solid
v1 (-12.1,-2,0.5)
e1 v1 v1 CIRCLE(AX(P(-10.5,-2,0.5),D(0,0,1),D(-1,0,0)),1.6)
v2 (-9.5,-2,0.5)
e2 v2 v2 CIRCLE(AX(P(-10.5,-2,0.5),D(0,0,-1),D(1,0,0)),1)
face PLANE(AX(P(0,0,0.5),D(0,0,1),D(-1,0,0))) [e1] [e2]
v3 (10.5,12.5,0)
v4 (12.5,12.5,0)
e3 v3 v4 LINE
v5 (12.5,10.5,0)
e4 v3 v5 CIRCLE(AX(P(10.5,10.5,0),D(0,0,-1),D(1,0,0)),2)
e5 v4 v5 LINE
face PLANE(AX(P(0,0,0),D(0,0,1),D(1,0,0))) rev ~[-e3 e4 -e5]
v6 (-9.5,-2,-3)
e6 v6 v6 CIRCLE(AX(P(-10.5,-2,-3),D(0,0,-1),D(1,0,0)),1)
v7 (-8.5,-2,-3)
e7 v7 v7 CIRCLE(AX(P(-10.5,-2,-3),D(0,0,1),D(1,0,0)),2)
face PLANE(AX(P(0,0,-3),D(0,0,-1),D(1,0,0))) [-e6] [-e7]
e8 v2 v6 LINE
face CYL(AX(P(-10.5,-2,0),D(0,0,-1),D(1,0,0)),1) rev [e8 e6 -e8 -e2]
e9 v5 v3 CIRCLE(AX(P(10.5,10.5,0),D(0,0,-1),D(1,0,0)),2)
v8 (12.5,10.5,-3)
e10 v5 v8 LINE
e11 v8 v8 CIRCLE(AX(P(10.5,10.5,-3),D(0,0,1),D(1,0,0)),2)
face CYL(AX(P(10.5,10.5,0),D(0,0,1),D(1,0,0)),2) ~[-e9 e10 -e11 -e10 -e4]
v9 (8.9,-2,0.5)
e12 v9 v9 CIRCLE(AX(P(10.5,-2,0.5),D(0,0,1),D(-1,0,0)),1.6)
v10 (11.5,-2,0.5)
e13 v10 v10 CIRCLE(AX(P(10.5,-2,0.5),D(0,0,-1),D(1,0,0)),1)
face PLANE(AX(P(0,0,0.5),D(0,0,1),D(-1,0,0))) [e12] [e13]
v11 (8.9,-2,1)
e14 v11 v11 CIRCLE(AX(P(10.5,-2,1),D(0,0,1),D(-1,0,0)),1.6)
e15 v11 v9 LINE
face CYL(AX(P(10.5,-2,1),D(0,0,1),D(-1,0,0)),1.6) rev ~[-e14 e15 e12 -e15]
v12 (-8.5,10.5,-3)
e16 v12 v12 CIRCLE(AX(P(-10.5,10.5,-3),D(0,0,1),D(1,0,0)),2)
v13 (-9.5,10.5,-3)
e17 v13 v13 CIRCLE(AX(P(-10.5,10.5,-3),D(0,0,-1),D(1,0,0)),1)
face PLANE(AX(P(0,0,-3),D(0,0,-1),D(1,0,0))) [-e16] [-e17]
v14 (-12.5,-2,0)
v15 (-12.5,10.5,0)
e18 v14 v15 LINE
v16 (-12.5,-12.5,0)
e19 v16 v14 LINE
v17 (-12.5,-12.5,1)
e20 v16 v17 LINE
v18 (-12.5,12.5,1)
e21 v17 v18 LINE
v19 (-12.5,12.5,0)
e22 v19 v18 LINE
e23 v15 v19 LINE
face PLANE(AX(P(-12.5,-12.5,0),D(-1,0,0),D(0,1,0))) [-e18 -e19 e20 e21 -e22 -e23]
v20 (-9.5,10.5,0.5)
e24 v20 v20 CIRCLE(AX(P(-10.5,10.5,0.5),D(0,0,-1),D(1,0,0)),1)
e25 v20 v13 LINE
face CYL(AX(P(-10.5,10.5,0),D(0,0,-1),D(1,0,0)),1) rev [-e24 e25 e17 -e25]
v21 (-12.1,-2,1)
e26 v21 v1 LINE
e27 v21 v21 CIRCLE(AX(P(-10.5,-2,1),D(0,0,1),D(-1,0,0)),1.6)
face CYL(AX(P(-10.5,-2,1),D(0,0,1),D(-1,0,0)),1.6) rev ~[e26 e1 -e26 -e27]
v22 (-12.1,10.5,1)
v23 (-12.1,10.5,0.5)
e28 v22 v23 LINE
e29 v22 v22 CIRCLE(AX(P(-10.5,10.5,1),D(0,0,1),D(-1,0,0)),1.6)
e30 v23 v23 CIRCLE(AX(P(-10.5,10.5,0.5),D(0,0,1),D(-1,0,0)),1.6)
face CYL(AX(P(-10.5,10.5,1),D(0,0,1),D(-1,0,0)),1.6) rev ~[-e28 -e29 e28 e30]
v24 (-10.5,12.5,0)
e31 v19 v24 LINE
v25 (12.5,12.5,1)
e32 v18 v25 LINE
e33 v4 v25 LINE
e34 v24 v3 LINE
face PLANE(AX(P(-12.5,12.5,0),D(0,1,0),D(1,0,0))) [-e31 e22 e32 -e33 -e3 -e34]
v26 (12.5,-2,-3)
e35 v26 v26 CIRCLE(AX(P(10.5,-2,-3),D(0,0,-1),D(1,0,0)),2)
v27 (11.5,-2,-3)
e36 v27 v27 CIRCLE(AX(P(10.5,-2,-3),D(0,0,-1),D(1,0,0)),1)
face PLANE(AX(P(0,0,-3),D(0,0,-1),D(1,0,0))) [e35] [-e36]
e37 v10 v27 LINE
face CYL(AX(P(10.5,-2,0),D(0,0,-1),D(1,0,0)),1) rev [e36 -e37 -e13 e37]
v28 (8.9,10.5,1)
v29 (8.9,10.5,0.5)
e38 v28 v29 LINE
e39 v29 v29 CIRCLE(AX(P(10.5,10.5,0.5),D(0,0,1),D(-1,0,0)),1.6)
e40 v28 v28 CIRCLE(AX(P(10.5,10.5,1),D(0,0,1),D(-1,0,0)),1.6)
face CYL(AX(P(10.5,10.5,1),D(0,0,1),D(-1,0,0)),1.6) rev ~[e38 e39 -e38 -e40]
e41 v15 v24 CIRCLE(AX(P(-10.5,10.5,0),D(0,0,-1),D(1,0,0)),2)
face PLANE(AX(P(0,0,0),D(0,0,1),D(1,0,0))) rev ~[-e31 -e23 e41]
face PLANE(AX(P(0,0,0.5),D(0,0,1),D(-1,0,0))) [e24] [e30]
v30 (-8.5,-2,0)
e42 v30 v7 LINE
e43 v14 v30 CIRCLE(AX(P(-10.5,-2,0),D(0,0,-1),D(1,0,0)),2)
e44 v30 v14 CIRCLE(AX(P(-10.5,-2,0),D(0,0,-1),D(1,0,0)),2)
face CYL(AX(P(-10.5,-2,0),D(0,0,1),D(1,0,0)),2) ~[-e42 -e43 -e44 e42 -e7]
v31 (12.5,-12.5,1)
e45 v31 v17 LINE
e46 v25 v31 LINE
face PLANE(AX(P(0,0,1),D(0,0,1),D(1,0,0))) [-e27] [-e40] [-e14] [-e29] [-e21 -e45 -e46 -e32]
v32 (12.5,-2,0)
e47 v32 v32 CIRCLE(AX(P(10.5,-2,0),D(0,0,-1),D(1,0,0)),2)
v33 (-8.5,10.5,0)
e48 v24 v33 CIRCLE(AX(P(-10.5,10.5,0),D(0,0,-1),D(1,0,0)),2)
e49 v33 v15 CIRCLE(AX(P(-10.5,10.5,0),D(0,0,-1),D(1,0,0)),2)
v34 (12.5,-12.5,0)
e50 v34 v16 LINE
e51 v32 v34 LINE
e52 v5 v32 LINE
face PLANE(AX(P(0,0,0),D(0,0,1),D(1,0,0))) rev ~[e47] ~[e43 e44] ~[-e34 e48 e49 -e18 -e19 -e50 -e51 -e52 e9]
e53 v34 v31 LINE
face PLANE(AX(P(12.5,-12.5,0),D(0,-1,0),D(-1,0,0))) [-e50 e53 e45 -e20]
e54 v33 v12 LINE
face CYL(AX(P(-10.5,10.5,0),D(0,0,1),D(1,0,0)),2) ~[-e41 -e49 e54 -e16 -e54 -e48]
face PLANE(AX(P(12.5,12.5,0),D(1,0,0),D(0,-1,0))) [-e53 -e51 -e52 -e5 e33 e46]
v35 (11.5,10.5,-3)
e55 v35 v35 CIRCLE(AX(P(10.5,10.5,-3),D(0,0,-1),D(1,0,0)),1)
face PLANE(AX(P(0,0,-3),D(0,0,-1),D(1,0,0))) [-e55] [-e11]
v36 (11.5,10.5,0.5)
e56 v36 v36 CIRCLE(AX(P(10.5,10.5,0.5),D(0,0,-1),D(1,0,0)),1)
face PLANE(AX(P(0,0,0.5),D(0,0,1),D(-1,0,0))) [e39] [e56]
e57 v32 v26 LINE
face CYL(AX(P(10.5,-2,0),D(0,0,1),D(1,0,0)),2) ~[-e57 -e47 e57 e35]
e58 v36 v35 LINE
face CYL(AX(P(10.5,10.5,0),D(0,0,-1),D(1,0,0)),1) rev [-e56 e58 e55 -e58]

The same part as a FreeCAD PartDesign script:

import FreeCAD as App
import Part
import Sketcher

V = App.Vector
Q = App.Units.Quantity


def add_polygon(sketch, points):
    """Adds a closed chain of lines whose ends are joined by coincident constraints."""
    first, n = sketch.GeometryCount, len(points)
    for a, b in zip(points, points[1:] + points[:1]):
        sketch.addGeometry(Part.LineSegment(App.Vector(*a, 0), App.Vector(*b, 0)), False)
    for i in range(n):
        sketch.addConstraint(Sketcher.Constraint("Coincident", first + i, 2, first + (i + 1) % n, 1))

doc = App.newDocument("Part")
body = doc.addObject("PartDesign::Body", "Body")

sketch1 = body.newObject("Sketcher::SketchObject", "Sketch")
sketch1.AttachmentSupport = (doc.getObject("XY_Plane"), [""])
sketch1.MapMode = "FlatFace"
add_polygon(sketch1, [(12.5, 12.5), (-12.5, 12.5), (-12.5, -12.5), (12.5, -12.5)])
sketch1.addGeometry(Part.Circle(V(-10.5, -2, 0), V(0, 0, 1), 1), False)
sketch1.addGeometry(Part.Circle(V(10.5, -2, 0), V(0, 0, 1), 1), False)
sketch1.addGeometry(Part.Circle(V(-10.5, 10.5, 0), V(0, 0, 1), 1), False)
sketch1.addGeometry(Part.Circle(V(10.5, 10.5, 0), V(0, 0, 1), 1), False)
sketch1.addConstraint([
    Sketcher.Constraint("Horizontal", 0),
    Sketcher.Constraint("Vertical", 1),
    Sketcher.Constraint("Horizontal", 2),
    Sketcher.Constraint("Vertical", 3),
    Sketcher.Constraint("Equal", 4, 5),
    Sketcher.Constraint("Equal", 5, 6),
    Sketcher.Constraint("Equal", 6, 7),
    Sketcher.Constraint("Symmetric", 0, 2, 2, 2, -1, 1),
    Sketcher.Constraint("Symmetric", 4, 3, 5, 3, -2),
    Sketcher.Constraint("Symmetric", 6, 3, 7, 3, -2),
    Sketcher.Constraint("Vertical", 4, 3, 6, 3),
    Sketcher.Constraint("Equal", 2, 1),
    Sketcher.Constraint("Diameter", 4, Q("2 mm")),
    Sketcher.Constraint("DistanceX", 0, 2, 0, 1, Q("25 mm")),
    Sketcher.Constraint("DistanceY", 4, 3, -1, 1, Q("2 mm")),
    Sketcher.Constraint("DistanceX", 4, 3, 5, 3, Q("21 mm")),
    Sketcher.Constraint("DistanceY", 6, 3, 0, 2, Q("2 mm")),
])
pad1 = body.newObject("PartDesign::Pad", "Pad")
pad1.Profile = sketch1
pad1.Length = 1

sketch2 = body.newObject("Sketcher::SketchObject", "Sketch001")
sketch2.AttachmentSupport = (doc.getObject("XY_Plane"), [""])
sketch2.MapMode = "FlatFace"
sketch2.addGeometry([
    Part.Circle(V(-10.5, -2, 0), V(0, 0, 1), 2),
    Part.Circle(V(-10.5, -2, 0), V(0, 0, 1), 1),
    Part.Circle(V(10.5, -2, 0), V(0, 0, 1), 2),
    Part.Circle(V(10.5, -2, 0), V(0, 0, 1), 1),
    Part.Circle(V(10.5, 10.5, 0), V(0, 0, 1), 2),
    Part.Circle(V(10.5, 10.5, 0), V(0, 0, 1), 1),
    Part.Circle(V(-10.5, 10.5, 0), V(0, 0, 1), 2),
    Part.Circle(V(-10.5, 10.5, 0), V(0, 0, 1), 1),
], False)
sketch2.addConstraint([
    Sketcher.Constraint("Coincident", 1, 3, 0, 3),
    Sketcher.Constraint("Coincident", 3, 3, 2, 3),
    Sketcher.Constraint("Coincident", 5, 3, 4, 3),
    Sketcher.Constraint("Coincident", 7, 3, 6, 3),
    Sketcher.Constraint("Equal", 0, 2),
    Sketcher.Constraint("Equal", 1, 3),
    Sketcher.Constraint("Equal", 2, 4),
    Sketcher.Constraint("Equal", 3, 5),
    Sketcher.Constraint("Equal", 4, 6),
    Sketcher.Constraint("Equal", 5, 7),
    Sketcher.Constraint("Symmetric", 0, 3, 2, 3, -2),
    Sketcher.Constraint("Symmetric", 4, 3, 6, 3, -2),
    Sketcher.Constraint("Vertical", 3, 3, 4, 3),
    Sketcher.Constraint("Diameter", 0, Q("4 mm")),
    Sketcher.Constraint("Diameter", 1, Q("2 mm")),
    Sketcher.Constraint("DistanceY", 0, 3, -1, 1, Q("2 mm")),
    Sketcher.Constraint("DistanceX", 0, 3, 2, 3, Q("21 mm")),
    Sketcher.Constraint("DistanceY", -1, 1, 4, 3, Q("10.5 mm")),
])
pad2 = body.newObject("PartDesign::Pad", "Pad001")
pad2.Profile = sketch2
pad2.Length = 3
pad2.Reversed = True

sketch3 = body.newObject("Sketcher::SketchObject", "Sketch002")
sketch3.AttachmentSupport = (doc.getObject("XY_Plane"), [""])
sketch3.MapMode = "FlatFace"
sketch3.AttachmentOffset = App.Placement(V(0, 0, 1), App.Rotation())
sketch3.addGeometry([
    Part.Circle(V(-10.5, 10.5, 0), V(0, 0, 1), 1.6),
    Part.Circle(V(-10.5, 10.5, 0), V(0, 0, 1), 1),
    Part.Circle(V(10.5, 10.5, 0), V(0, 0, 1), 1.6),
    Part.Circle(V(10.5, 10.5, 0), V(0, 0, 1), 1),
    Part.Circle(V(10.5, -2, 0), V(0, 0, 1), 1.6),
    Part.Circle(V(10.5, -2, 0), V(0, 0, 1), 1),
    Part.Circle(V(-10.5, -2, 0), V(0, 0, 1), 1.6),
    Part.Circle(V(-10.5, -2, 0), V(0, 0, 1), 1),
], False)
sketch3.addConstraint([
    Sketcher.Constraint("Coincident", 1, 3, 0, 3),
    Sketcher.Constraint("Coincident", 3, 3, 2, 3),
    Sketcher.Constraint("Coincident", 5, 3, 4, 3),
    Sketcher.Constraint("Coincident", 7, 3, 6, 3),
    Sketcher.Constraint("Equal", 0, 2),
    Sketcher.Constraint("Equal", 1, 3),
    Sketcher.Constraint("Equal", 2, 4),
    Sketcher.Constraint("Equal", 3, 5),
    Sketcher.Constraint("Equal", 4, 6),
    Sketcher.Constraint("Equal", 5, 7),
    Sketcher.Constraint("Symmetric", 0, 3, 2, 3, -2),
    Sketcher.Constraint("Symmetric", 4, 3, 6, 3, -2),
    Sketcher.Constraint("Vertical", 3, 3, 4, 3),
    Sketcher.Constraint("Diameter", 0, Q("3.2 mm")),
    Sketcher.Constraint("Diameter", 1, Q("2 mm")),
    Sketcher.Constraint("DistanceY", 4, 3, -1, 1, Q("2 mm")),
    Sketcher.Constraint("DistanceX", 0, 3, 2, 3, Q("21 mm")),
    Sketcher.Constraint("DistanceY", -1, 1, 0, 3, Q("10.5 mm")),
])
pocket1 = body.newObject("PartDesign::Pocket", "Pocket")
pocket1.Profile = sketch3
pocket1.Length = 0.5

doc.recompute()
